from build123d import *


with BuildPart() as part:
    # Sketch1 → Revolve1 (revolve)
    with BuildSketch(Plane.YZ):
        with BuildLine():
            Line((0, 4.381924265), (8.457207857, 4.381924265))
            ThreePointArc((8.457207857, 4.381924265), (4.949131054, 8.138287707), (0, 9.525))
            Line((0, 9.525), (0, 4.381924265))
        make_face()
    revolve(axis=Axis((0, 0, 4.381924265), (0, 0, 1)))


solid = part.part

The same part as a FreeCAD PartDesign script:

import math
import FreeCAD as App
import Part
import Sketcher
Q = App.Units.Quantity

doc = App.newDocument("Part")
body = doc.addObject("PartDesign::Body", "Body")

# Sketch on YZ plane
sketch1 = doc.addObject("Sketcher::SketchObject", "Sketch")
body.addObject(sketch1)
sketch1.AttachmentSupport = (doc.YZ_Plane, [""])
sketch1.MapMode = "FlatFace"
sketch1.addGeometry([
    Part.LineSegment(App.Vector(0, 4, 0), App.Vector(8, 4, 0)),
    Part.ArcOfCircle(Part.Circle(App.Vector(0, 0, 0), App.Vector(0, 0, 1), 10), math.radians(27), math.radians(90)),
    Part.LineSegment(App.Vector(0, 10, 0), App.Vector(0, 4, 0)),
], False)
sketch1.addConstraint([
    Sketcher.Constraint("Coincident", 0, 2, 1, 1),
    Sketcher.Constraint("Coincident", 1, 2, 2, 1),
    Sketcher.Constraint("Coincident", 2, 2, 0, 1),
    Sketcher.Constraint("Horizontal", 0),
    Sketcher.Constraint("Vertical", 2),
    Sketcher.Constraint("Coincident", 1, 3, -1, 1),
    Sketcher.Constraint("PointOnObject", 1, 2, -2),
    Sketcher.Constraint("Radius", 1, Q("0.375 in")),
    Sketcher.Constraint("DistanceX", 0, 1, 0, 2, 8.457208),
])
revolution = doc.addObject("PartDesign::Revolution", "Revolution")
body.addObject(revolution)
revolution.Profile = sketch1
revolution.ReferenceAxis = (sketch1, ["V_Axis"])
revolution.Angle = 360

doc.recompute()
